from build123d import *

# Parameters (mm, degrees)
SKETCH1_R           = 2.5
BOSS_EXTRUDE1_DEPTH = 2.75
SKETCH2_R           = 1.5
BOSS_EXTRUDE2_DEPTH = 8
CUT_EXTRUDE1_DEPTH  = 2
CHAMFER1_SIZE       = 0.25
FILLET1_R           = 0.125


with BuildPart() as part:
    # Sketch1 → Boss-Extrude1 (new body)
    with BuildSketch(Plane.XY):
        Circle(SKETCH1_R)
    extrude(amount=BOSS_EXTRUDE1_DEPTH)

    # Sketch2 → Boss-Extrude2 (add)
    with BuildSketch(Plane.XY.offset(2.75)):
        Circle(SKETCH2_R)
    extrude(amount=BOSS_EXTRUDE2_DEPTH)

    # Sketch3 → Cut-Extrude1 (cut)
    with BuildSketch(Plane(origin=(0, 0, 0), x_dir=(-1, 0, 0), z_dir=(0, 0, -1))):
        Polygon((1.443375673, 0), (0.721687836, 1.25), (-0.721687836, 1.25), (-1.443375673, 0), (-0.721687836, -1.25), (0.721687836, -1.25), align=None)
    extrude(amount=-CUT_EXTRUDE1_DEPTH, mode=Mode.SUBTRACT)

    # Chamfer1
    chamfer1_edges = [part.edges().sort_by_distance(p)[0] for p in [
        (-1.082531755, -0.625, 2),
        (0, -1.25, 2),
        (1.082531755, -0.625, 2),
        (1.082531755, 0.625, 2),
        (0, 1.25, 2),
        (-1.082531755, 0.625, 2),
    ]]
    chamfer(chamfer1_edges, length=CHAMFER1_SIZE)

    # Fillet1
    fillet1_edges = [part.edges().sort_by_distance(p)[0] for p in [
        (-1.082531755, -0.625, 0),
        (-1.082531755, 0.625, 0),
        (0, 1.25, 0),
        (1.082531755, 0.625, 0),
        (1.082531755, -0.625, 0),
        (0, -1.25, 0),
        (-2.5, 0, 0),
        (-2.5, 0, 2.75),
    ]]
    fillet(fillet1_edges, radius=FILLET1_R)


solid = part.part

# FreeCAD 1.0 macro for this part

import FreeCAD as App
import Part
import Sketcher
from FreeCAD import Vector
Q = App.Units.Quantity


def edges_at(feature, points):
    """Names of the edges that pass closest to the given points."""
    edges = feature.Shape.Edges
    near = lambda p: min(range(len(edges)), key=lambda i: edges[i].distToShape(Part.Vertex(*p))[0])
    return sorted({f"Edge{near(p) + 1}" for p in points})


def add_polygon(sketch, points):
    """Adds a closed chain of lines whose ends are joined by coincident constraints."""
    first, n = sketch.GeometryCount, len(points)
    for a, b in zip(points, points[1:] + points[:1]):
        sketch.addGeometry(Part.LineSegment(App.Vector(*a, 0), App.Vector(*b, 0)), False)
    for i in range(n):
        sketch.addConstraint(Sketcher.Constraint("Coincident", first + i, 2, first + (i + 1) % n, 1))

doc = App.newDocument("Part")
params = doc.addObject("Spreadsheet::Sheet", "Params")
for row, (alias, value) in enumerate([
    ("sketch1_diameter", "5 mm"),
    ("pad1_length", "2.75 mm"),
    ("sketch2_diameter", "3 mm"),
    ("pad2_length", "8 mm"),
    ("pocket1_length", "2 mm"),
    ("chamfer_size", "0.25 mm"),
    ("fillet_radius", "0.125 mm"),
], start=1):
    params.set(f"A{row}", alias)
    params.set(f"B{row}", "=" + value)
    params.setAlias(f"B{row}", alias)

body = doc.addObject("PartDesign::Body", "Body")

# Sketch on XY plane
sketch1 = body.newObject("Sketcher::SketchObject", "Sketch")
sketch1.AttachmentSupport = (doc.getObject("XY_Plane"), [""])
sketch1.MapMode = "FlatFace"
sketch1.addGeometry(Part.Circle(Vector(0, 0, 0), Vector(0, 0, 1), 2.5), False)
sketch1.addConstraint([
    Sketcher.Constraint("Coincident", 0, 3, -1, 1),
    Sketcher.Constraint("Diameter", 0, 5.0),
])
sketch1.setExpression("Constraints[1]", "Params.sketch1_diameter")
pad1 = body.newObject("PartDesign::Pad", "Pad")
pad1.Profile = sketch1
pad1.setExpression("Length", "Params.pad1_length")

# Sketch on XY plane
sketch2 = body.newObject("Sketcher::SketchObject", "Sketch001")
sketch2.AttachmentSupport = (doc.getObject("XY_Plane"), [""])
sketch2.MapMode = "FlatFace"
sketch2.AttachmentOffset = App.Placement(Vector(0, 0, 2.75), App.Rotation())
sketch2.addGeometry(Part.Circle(Vector(0, 0, 0), Vector(0, 0, 1), 1.5), False)
sketch2.addConstraint([
    Sketcher.Constraint("Coincident", 0, 3, -1, 1),
    Sketcher.Constraint("Diameter", 0, 3.0),
])
sketch2.setExpression("Constraints[1]", "Params.sketch2_diameter")
pad2 = body.newObject("PartDesign::Pad", "Pad001")
pad2.Profile = sketch2
pad2.setExpression("Length", "Params.pad2_length")

# Sketch on XY plane
sketch3 = body.newObject("Sketcher::SketchObject", "Sketch002")
sketch3.AttachmentSupport = (doc.getObject("XY_Plane"), [""])
sketch3.MapMode = "FlatFace"
add_polygon(sketch3, [(-1.4, 0), (-0.7, 1.2), (0.7, 1.2), (1.4, 0), (0.7, -1.2), (-0.7, -1.2)])  # lines 0-5
sketch3.addConstraint([
    Sketcher.Constraint("Horizontal", 1),
    Sketcher.Constraint("Horizontal", 4),
    Sketcher.Constraint("Symmetric", 0, 2, 3, 2, -1, 1),
    Sketcher.Constraint("Symmetric", 2, 2, 5, 2, -1, 1),
    Sketcher.Constraint("PointOnObject", 2, 2, -1),
    Sketcher.Constraint("Parallel", 2, 5),
    Sketcher.Constraint("Vertical", 1, 2, 3, 2),
    Sketcher.Constraint("Angle", 0, Q("60 deg")),
    Sketcher.Constraint("DistanceY", 3, 2, 1, 2, 2.5),
    Sketcher.Constraint("DistanceX", 1, 1, 1, 2, 1.443376),
])
pocket1 = body.newObject("PartDesign::Pocket", "Pocket")
pocket1.Profile = sketch3
pocket1.setExpression("Length", "Params.pocket1_length")
pocket1.Reversed = True
doc.recompute()

chamfer = body.newObject("PartDesign::Chamfer", "Chamfer")
chamfer.Base = (pocket1, edges_at(pocket1, [
    (-1.083, -0.625, 2),
    (0, -1.25, 2),
    (1.083, -0.625, 2),
    (1.083, 0.625, 2),
    (0, 1.25, 2),
    (-1.083, 0.625, 2),
]))
chamfer.setExpression("Size", "Params.chamfer_size")
doc.recompute()

fillet = body.newObject("PartDesign::Fillet", "Fillet")
fillet.Base = (chamfer, edges_at(chamfer, [
    (-1.083, -0.625, 0),
    (-1.083, 0.625, 0),
    (0, 1.25, 0),
    (1.083, 0.625, 0),
    (1.083, -0.625, 0),
    (0, -1.25, 0),
    (-2.5, 0, 0),
    (-2.5, 0, 2.75),
]))
fillet.setExpression("Radius", "Params.fillet_radius")

doc.recompute()
